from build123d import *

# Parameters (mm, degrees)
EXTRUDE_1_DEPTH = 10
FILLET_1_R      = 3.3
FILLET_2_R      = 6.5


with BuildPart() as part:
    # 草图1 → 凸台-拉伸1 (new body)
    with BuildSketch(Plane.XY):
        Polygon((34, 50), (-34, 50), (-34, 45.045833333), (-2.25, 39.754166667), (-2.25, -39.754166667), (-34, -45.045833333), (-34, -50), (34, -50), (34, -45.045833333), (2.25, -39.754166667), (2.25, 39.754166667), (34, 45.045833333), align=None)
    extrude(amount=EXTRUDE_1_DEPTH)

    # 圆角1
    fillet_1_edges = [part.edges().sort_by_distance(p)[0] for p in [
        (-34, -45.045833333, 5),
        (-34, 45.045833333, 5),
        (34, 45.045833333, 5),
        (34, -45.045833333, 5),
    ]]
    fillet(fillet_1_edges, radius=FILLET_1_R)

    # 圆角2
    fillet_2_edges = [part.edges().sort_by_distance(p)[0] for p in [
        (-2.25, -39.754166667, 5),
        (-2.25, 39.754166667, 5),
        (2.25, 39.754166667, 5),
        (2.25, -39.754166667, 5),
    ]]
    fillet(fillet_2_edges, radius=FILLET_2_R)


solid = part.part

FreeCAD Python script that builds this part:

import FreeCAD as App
import Part
import Sketcher
from FreeCAD import Vector
Q = App.Units.Quantity


def edges_at(feature, points):
    """Names of the edges that pass closest to the given points."""
    edges = feature.Shape.Edges
    near = lambda p: min(range(len(edges)), key=lambda i: edges[i].distToShape(Part.Vertex(*p))[0])
    return sorted({f"Edge{near(p) + 1}" for p in points})

doc = App.newDocument("Part")
body = doc.addObject("PartDesign::Body", "Body")

# Sketch on XY plane
sketch1 = doc.addObject("Sketcher::SketchObject", "Sketch")
body.addObject(sketch1)
sketch1.AttachmentSupport = (doc.XY_Plane, [""])
sketch1.MapMode = "FlatFace"
sketch1.addGeometry([
    Part.LineSegment(Vector(34, 50, 0), Vector(-34, 50, 0)),  # 0
    Part.LineSegment(Vector(-34, 50, 0), Vector(-34, 45, 0)),  # 1
    Part.LineSegment(Vector(-34, 45, 0), Vector(-2.2, 39.8, 0)),  # 2
    Part.LineSegment(Vector(-2.2, 39.8, 0), Vector(-2.2, -39.8, 0)),  # 3
    Part.LineSegment(Vector(-2.2, -39.8, 0), Vector(-34, -45, 0)),  # 4
    Part.LineSegment(Vector(-34, -45, 0), Vector(-34, -50, 0)),  # 5
    Part.LineSegment(Vector(-34, -50, 0), Vector(34, -50, 0)),  # 6
    Part.LineSegment(Vector(34, -50, 0), Vector(34, -45, 0)),  # 7
    Part.LineSegment(Vector(34, -45, 0), Vector(2.2, -39.8, 0)),  # 8
    Part.LineSegment(Vector(2.2, -39.8, 0), Vector(2.2, 39.8, 0)),  # 9
    Part.LineSegment(Vector(2.2, 39.8, 0), Vector(34, 45, 0)),  # 10
    Part.LineSegment(Vector(34, 45, 0), Vector(34, 50, 0)),  # 11
], False)
sketch1.addConstraint([
    Sketcher.Constraint("Coincident", 0, 2, 1, 1),
    Sketcher.Constraint("Coincident", 1, 2, 2, 1),
    Sketcher.Constraint("Coincident", 2, 2, 3, 1),
    Sketcher.Constraint("Coincident", 3, 2, 4, 1),
    Sketcher.Constraint("Coincident", 4, 2, 5, 1),
    Sketcher.Constraint("Coincident", 5, 2, 6, 1),
    Sketcher.Constraint("Coincident", 6, 2, 7, 1),
    Sketcher.Constraint("Coincident", 7, 2, 8, 1),
    Sketcher.Constraint("Coincident", 8, 2, 9, 1),
    Sketcher.Constraint("Coincident", 9, 2, 10, 1),
    Sketcher.Constraint("Coincident", 10, 2, 11, 1),
    Sketcher.Constraint("Coincident", 11, 2, 0, 1),
    Sketcher.Constraint("Horizontal", 0),
    Sketcher.Constraint("Vertical", 1),
    Sketcher.Constraint("Vertical", 3),
    Sketcher.Constraint("Vertical", 5),
    Sketcher.Constraint("Horizontal", 6),
    Sketcher.Constraint("Vertical", 7),
    Sketcher.Constraint("Vertical", 9),
    Sketcher.Constraint("Vertical", 11),
    Sketcher.Constraint("Symmetric", 0, 2, 6, 2, -1, 1),
    Sketcher.Constraint("Symmetric", 2, 2, 8, 2, -1, 1),
    Sketcher.Constraint("Symmetric", 4, 2, 10, 2, -1, 1),
    Sketcher.Constraint("Symmetric", 4, 2, 7, 2, -2),
    Sketcher.Constraint("Parallel", 2, 8),
    Sketcher.Constraint("Parallel", 4, 10),
    Sketcher.Constraint("Horizontal", 3, 2, 8, 2),
    Sketcher.Constraint("DistanceX", 0, 2, 0, 1, Q("68 mm")),
    Sketcher.Constraint("DistanceY", -1, 1, 0, 2, Q("50 mm")),
    Sketcher.Constraint("DistanceY", 3, 2, 1, 2, Q("84.8 mm")),
    Sketcher.Constraint("DistanceX", 3, 2, 8, 2, Q("4.5 mm")),
    Sketcher.Constraint("Distance", 2, Q("32.187952 mm")),
])
pad1 = doc.addObject("PartDesign::Pad", "Pad")
body.addObject(pad1)
pad1.Profile = sketch1
pad1.Length = 10
doc.recompute()

fillet = doc.addObject("PartDesign::Fillet", "Fillet")
body.addObject(fillet)
fillet.Base = (pad1, edges_at(pad1, [
    (-34, -45.046, 5),
    (-34, 45.046, 5),
    (34, 45.046, 5),
    (34, -45.046, 5),
]))
fillet.Radius = 3.3
doc.recompute()

fillet2 = doc.addObject("PartDesign::Fillet", "Fillet001")
body.addObject(fillet2)
fillet2.Base = (fillet, edges_at(fillet, [
    (-2.25, -39.754, 5),
    (-2.25, 39.754, 5),
    (2.25, 39.754, 5),
    (2.25, -39.754, 5),
]))
fillet2.Radius = 6.5

doc.recompute()
